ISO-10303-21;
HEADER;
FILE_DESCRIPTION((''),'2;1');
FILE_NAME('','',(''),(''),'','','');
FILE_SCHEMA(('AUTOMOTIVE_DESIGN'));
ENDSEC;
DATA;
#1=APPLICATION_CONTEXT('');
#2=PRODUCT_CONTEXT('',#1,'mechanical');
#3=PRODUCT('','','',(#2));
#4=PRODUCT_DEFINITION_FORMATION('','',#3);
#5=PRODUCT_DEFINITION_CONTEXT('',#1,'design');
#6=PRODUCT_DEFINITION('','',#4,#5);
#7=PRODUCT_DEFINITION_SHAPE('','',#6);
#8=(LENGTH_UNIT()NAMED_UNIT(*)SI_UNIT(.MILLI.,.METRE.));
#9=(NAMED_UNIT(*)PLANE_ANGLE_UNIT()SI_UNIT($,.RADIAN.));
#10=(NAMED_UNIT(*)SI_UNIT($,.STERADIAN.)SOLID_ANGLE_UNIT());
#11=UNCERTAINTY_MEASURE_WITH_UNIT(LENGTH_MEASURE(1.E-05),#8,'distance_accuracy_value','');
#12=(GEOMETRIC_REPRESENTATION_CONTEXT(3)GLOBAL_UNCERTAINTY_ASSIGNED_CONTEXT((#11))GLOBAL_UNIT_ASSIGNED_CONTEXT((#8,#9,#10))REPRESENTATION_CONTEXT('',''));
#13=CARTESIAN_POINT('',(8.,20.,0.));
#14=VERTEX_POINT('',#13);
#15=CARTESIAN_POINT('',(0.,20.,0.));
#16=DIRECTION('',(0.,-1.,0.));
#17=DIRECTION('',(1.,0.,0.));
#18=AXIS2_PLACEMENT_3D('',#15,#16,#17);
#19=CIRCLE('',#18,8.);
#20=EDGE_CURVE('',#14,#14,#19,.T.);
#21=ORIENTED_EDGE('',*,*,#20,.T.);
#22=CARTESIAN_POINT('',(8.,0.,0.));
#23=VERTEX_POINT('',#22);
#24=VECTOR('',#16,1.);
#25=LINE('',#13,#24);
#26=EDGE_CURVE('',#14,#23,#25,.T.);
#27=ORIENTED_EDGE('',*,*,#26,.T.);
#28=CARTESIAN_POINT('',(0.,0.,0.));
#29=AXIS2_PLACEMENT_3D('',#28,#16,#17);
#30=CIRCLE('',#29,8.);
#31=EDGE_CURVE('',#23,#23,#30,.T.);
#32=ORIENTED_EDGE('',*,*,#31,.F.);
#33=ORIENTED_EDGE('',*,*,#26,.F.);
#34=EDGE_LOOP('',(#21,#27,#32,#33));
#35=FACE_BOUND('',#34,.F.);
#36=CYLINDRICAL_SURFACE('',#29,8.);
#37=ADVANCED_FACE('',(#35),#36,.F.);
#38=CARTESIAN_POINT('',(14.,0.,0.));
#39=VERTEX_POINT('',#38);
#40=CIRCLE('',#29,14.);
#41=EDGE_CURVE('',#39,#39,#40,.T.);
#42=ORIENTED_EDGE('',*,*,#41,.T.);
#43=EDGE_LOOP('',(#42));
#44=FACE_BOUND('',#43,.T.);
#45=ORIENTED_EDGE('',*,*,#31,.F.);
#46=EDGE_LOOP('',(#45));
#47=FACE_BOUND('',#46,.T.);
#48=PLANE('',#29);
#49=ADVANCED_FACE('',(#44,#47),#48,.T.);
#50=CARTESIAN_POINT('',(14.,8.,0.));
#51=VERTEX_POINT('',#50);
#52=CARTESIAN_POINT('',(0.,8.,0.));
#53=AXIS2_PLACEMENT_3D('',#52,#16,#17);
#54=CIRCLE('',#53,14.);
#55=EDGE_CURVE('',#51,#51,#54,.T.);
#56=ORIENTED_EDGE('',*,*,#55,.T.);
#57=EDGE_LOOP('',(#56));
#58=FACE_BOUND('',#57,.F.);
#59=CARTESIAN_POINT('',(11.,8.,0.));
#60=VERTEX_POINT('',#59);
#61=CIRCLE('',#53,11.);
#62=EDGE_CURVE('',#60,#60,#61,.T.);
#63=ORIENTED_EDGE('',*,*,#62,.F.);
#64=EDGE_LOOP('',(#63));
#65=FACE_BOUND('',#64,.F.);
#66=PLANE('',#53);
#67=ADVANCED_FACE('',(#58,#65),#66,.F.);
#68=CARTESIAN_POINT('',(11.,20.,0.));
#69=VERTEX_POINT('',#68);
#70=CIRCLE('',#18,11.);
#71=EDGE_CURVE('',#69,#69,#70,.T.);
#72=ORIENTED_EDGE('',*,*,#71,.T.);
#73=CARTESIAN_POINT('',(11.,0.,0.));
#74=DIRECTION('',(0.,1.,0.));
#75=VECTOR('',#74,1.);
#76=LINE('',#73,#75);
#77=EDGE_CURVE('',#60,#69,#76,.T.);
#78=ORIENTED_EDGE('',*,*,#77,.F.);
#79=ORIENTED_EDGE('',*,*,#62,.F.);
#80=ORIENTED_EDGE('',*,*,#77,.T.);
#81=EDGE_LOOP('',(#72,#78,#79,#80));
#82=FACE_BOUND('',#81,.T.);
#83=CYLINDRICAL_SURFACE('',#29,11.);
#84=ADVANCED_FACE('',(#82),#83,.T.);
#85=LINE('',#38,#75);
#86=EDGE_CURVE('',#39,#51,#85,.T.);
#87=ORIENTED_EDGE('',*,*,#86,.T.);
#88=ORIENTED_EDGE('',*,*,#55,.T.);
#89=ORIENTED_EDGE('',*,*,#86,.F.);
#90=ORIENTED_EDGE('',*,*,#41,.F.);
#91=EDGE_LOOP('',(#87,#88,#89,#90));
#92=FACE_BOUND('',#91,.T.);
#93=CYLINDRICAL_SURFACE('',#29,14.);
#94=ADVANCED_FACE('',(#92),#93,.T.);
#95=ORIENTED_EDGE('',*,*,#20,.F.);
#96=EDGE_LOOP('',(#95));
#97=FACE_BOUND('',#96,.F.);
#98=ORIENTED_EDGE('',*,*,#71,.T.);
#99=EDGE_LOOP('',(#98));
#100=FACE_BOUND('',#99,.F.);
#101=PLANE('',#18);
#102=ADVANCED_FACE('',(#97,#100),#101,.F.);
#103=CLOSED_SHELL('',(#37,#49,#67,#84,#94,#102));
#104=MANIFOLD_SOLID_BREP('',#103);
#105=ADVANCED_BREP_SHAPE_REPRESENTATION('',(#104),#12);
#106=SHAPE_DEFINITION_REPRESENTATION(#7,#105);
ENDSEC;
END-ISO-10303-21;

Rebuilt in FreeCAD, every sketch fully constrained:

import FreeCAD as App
import Part
import Sketcher

V = App.Vector

doc = App.newDocument("Part")
params = doc.addObject("Spreadsheet::Sheet", "Params")
for row, (alias, value) in enumerate([
    ("sketch1_diameter", "28 mm"),
    ("sketch1_diameter2", "16 mm"),
    ("pad1_length", "8 mm"),
    ("sketch2_diameter", "22 mm"),
    ("sketch2_diameter2", "16 mm"),
    ("pad2_length", "20 mm"),
], start=1):
    params.set(f"A{row}", alias)
    params.set(f"B{row}", "=" + value)
    params.setAlias(f"B{row}", alias)

body = doc.addObject("PartDesign::Body", "Body")

# Sketch on XZ plane
sketch1 = body.newObject("Sketcher::SketchObject", "Sketch")
sketch1.AttachmentSupport = (doc.getObject("XZ_Plane"), [""])
sketch1.MapMode = "FlatFace"
sketch1.addGeometry(Part.Circle(V(0, 0, 0), V(0, 0, 1), 14), False)
sketch1.addGeometry(Part.Circle(V(0, 0, 0), V(0, 0, 1), 8), False)
sketch1.addConstraint(Sketcher.Constraint("Coincident", 0, 3, -1, 1))
sketch1.addConstraint(Sketcher.Constraint("Coincident", 1, 3, -1, 1))
sketch1.addConstraint(Sketcher.Constraint("Diameter", 0, 28.0))
sketch1.addConstraint(Sketcher.Constraint("Diameter", 1, 16.0))
sketch1.setExpression("Constraints[2]", "Params.sketch1_diameter")
sketch1.setExpression("Constraints[3]", "Params.sketch1_diameter2")
pad1 = body.newObject("PartDesign::Pad", "Pad")
pad1.Profile = sketch1
pad1.setExpression("Length", "Params.pad1_length")
pad1.Reversed = True

# Sketch on XZ plane
sketch2 = body.newObject("Sketcher::SketchObject", "Sketch001")
sketch2.AttachmentSupport = (doc.getObject("XZ_Plane"), [""])
sketch2.MapMode = "FlatFace"
sketch2.addGeometry(Part.Circle(V(0, 0, 0), V(0, 0, 1), 11), False)
sketch2.addGeometry(Part.Circle(V(0, 0, 0), V(0, 0, 1), 8), False)
sketch2.addConstraint(Sketcher.Constraint("Coincident", 0, 3, -1, 1))
sketch2.addConstraint(Sketcher.Constraint("Coincident", 1, 3, -1, 1))
sketch2.addConstraint(Sketcher.Constraint("Diameter", 0, 22.0))
sketch2.addConstraint(Sketcher.Constraint("Diameter", 1, 16.0))
sketch2.setExpression("Constraints[2]", "Params.sketch2_diameter")
sketch2.setExpression("Constraints[3]", "Params.sketch2_diameter2")
pad2 = body.newObject("PartDesign::Pad", "Pad001")
pad2.Profile = sketch2
pad2.setExpression("Length", "Params.pad2_length")
pad2.Reversed = True

doc.recompute()
